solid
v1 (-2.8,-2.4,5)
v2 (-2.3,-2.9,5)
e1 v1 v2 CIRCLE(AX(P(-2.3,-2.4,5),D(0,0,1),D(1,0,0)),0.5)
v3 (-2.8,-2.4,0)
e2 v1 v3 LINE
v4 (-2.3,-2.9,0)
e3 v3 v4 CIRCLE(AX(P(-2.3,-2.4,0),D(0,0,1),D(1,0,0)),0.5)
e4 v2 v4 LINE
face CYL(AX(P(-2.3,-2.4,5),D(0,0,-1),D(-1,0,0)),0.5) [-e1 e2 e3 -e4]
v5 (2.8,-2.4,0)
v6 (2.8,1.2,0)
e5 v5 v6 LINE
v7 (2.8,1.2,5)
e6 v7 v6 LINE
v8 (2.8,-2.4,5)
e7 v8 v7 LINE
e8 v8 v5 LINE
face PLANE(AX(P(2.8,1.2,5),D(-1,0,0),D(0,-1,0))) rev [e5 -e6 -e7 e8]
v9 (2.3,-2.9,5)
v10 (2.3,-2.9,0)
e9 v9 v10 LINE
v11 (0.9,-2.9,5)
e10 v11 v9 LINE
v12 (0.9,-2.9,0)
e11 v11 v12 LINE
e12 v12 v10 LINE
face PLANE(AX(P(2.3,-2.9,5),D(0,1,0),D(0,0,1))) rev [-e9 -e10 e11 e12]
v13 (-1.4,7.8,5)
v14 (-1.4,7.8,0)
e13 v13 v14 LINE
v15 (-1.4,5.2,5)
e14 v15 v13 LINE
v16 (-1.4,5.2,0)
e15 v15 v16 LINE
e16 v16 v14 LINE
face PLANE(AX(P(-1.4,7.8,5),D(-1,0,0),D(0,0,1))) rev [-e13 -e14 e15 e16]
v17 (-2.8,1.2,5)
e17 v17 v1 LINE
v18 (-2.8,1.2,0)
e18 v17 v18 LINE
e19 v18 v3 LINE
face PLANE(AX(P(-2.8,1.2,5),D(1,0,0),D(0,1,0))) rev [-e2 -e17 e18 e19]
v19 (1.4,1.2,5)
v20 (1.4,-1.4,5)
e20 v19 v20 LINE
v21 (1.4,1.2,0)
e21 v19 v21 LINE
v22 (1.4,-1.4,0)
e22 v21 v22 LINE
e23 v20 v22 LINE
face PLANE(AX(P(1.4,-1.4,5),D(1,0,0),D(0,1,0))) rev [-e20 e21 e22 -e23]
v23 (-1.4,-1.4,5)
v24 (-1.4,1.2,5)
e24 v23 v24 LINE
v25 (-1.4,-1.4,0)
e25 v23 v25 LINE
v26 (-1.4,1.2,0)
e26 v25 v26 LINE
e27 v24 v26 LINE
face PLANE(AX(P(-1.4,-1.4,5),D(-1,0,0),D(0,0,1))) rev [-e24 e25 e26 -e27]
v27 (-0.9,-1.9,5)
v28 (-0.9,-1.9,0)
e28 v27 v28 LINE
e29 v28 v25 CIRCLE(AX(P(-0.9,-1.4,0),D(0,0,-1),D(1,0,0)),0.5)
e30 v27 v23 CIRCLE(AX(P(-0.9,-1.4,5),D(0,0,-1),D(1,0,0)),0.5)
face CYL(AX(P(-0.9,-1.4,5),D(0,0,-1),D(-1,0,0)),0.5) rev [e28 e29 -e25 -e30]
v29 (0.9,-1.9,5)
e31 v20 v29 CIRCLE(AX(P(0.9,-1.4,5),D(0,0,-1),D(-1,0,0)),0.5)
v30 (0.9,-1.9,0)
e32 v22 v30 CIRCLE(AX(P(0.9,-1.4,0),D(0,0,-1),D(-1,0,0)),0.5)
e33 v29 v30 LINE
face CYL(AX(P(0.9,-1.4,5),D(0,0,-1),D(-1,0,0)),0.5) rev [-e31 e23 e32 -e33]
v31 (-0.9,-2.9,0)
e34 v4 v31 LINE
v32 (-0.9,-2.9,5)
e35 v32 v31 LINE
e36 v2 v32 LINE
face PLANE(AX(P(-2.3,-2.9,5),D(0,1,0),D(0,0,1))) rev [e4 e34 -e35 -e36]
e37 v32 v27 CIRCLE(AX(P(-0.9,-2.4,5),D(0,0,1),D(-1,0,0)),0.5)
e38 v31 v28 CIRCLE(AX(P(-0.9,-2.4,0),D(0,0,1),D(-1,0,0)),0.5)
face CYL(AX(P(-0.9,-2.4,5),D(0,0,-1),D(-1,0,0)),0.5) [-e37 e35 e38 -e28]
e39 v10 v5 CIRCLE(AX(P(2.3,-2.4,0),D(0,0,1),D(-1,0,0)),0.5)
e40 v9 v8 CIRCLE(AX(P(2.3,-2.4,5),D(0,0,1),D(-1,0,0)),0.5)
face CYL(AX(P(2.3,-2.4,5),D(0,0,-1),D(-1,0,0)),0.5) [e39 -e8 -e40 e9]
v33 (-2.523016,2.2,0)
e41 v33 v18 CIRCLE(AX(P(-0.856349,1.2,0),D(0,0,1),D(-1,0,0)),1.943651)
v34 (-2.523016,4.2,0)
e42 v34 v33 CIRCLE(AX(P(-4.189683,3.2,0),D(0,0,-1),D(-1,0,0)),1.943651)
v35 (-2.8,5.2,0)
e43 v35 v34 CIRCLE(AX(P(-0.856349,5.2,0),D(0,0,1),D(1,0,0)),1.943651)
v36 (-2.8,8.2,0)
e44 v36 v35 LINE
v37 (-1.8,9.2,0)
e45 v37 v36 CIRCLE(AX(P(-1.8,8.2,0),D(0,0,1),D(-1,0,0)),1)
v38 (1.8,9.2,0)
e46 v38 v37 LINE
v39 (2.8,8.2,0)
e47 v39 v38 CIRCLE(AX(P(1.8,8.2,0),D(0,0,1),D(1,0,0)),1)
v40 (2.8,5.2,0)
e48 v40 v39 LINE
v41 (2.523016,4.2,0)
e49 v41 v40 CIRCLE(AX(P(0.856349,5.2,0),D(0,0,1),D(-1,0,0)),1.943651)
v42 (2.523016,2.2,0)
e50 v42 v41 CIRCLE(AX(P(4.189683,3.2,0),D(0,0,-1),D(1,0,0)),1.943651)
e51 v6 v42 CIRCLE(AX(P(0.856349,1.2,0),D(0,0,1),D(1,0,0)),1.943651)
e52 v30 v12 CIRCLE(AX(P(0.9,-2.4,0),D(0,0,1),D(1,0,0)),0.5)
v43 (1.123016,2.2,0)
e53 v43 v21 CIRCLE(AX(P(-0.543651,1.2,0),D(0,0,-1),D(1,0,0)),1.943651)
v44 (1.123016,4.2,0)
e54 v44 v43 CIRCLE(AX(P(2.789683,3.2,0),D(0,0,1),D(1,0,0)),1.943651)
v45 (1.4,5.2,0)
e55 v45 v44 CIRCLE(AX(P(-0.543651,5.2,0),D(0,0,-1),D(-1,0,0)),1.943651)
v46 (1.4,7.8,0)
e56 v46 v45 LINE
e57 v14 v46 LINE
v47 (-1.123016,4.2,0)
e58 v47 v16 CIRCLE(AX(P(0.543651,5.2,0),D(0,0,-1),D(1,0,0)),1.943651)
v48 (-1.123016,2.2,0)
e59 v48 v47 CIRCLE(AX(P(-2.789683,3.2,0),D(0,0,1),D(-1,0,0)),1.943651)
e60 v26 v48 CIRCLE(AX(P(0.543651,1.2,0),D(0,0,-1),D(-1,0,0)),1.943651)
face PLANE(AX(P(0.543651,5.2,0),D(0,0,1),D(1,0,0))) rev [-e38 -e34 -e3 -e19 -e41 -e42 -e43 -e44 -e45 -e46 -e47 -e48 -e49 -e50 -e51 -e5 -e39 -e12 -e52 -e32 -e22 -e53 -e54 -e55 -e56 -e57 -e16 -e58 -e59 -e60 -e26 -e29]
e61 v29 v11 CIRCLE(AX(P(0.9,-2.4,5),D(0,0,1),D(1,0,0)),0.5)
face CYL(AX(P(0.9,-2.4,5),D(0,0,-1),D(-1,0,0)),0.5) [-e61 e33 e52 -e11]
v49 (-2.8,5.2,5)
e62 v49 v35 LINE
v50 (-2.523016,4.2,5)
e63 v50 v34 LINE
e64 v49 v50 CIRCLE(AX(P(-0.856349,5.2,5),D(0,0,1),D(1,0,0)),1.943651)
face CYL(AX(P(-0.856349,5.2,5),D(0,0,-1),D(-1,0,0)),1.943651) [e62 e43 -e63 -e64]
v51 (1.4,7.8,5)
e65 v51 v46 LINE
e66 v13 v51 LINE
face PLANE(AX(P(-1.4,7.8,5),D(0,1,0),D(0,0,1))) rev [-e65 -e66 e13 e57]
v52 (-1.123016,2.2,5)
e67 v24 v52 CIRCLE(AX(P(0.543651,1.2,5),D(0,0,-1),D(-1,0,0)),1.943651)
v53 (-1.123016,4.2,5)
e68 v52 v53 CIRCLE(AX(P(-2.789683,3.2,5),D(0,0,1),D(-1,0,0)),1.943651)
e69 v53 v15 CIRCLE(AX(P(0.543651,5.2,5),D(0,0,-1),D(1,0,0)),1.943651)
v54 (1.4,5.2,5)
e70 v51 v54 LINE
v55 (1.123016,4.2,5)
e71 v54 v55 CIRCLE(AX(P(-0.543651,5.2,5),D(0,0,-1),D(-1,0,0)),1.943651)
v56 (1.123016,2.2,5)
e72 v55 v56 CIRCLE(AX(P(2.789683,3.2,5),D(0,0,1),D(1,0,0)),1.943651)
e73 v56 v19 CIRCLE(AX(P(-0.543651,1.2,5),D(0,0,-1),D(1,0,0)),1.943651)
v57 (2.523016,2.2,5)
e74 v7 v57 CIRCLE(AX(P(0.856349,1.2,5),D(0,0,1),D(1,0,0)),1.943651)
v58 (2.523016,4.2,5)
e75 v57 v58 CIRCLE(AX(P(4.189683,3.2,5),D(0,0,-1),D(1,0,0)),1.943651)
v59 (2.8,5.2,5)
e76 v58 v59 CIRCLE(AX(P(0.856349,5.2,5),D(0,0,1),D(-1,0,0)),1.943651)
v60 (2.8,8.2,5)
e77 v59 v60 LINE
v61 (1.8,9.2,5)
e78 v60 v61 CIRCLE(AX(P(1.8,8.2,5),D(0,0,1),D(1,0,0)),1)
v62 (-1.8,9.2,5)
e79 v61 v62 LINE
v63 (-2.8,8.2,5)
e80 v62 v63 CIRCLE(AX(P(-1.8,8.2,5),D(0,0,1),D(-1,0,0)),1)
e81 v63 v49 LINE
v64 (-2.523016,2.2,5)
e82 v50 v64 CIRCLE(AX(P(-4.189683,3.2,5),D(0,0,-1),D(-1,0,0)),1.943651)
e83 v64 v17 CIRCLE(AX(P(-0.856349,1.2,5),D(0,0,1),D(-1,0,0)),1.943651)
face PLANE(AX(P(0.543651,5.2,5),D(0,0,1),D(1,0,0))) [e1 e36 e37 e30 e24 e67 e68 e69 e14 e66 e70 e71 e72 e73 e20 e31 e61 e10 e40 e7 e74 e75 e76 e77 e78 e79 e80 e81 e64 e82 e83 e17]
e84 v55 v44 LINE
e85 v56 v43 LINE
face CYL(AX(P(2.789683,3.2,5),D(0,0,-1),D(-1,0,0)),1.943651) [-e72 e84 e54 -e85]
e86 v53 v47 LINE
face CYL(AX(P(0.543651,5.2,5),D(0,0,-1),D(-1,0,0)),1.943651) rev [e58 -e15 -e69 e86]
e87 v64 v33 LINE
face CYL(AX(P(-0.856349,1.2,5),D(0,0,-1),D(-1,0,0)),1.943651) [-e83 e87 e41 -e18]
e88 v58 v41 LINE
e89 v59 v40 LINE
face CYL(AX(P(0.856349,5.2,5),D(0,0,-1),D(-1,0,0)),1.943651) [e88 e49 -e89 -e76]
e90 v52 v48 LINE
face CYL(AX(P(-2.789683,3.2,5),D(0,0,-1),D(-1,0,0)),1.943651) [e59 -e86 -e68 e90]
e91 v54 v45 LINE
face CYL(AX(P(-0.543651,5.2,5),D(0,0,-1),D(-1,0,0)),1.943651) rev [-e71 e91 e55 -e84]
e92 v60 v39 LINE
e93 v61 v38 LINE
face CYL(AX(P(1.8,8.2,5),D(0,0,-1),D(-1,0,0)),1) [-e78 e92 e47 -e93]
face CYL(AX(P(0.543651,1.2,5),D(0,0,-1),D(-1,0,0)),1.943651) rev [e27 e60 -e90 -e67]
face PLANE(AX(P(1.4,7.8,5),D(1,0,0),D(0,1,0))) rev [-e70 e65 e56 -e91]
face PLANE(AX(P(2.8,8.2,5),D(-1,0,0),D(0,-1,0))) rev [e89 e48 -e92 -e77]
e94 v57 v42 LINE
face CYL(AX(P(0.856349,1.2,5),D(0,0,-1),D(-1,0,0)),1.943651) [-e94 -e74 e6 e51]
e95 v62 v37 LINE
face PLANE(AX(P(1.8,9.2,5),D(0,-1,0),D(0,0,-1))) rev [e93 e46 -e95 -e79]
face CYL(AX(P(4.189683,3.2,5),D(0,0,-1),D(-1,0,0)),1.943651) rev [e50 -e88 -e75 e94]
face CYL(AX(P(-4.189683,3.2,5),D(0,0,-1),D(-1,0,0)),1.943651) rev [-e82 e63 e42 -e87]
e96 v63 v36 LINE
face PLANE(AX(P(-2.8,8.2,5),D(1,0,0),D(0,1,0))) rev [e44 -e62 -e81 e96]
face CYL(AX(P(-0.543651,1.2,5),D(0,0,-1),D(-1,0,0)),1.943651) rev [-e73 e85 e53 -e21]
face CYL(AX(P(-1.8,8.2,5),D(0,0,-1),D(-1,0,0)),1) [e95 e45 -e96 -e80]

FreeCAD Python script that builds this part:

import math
import FreeCAD as App
import Part
import Sketcher

doc = App.newDocument("Part")
params = doc.addObject("Spreadsheet::Sheet", "Params")
for row, (alias, value) in enumerate([
    ("sketch1_radius", "1 mm"),
    ("sketch1_radius2", "0.5 mm"),
    ("sketch1_height", "3 mm"),
    ("sketch1_width", "2.8 mm"),
    ("sketch1_width2", "1.4 mm"),
    ("pad1_length", "5 mm"),
], start=1):
    params.set(f"A{row}", alias)
    params.set(f"B{row}", "=" + value)
    params.setAlias(f"B{row}", alias)

body = doc.addObject("PartDesign::Body", "Body")

# Sketch on XY plane
sketch1 = body.newObject("Sketcher::SketchObject", "Sketch")
sketch1.AttachmentSupport = (doc.getObject("XY_Plane"), [""])
sketch1.MapMode = "FlatFace"
sketch1.addGeometry([
    Part.LineSegment(App.Vector(-1.4, 7.8, 0), App.Vector(1.4, 7.8, 0)),  # 0
    Part.LineSegment(App.Vector(1.4, 7.8, 0), App.Vector(1.4, 5.2, 0)),  # 1
    Part.ArcOfCircle(Part.Circle(App.Vector(-0.54, 5.2, 0), App.Vector(0, 0, 1), 1.94), math.radians(-31), math.radians(0)),  # 2
    Part.ArcOfCircle(Part.Circle(App.Vector(2.79, 3.2, 0), App.Vector(0, 0, 1), 1.94), math.radians(149), math.radians(211)),  # 3
    Part.ArcOfCircle(Part.Circle(App.Vector(-0.54, 1.2, 0), App.Vector(0, 0, 1), 1.94), math.radians(0), math.radians(31)),  # 4
    Part.LineSegment(App.Vector(1.4, 1.2, 0), App.Vector(1.4, -1.4, 0)),  # 5
    Part.ArcOfCircle(Part.Circle(App.Vector(0.9, -1.4, 0), App.Vector(0, 0, 1), 0.5), math.radians(-90), math.radians(0)),  # 6
    Part.ArcOfCircle(Part.Circle(App.Vector(0.9, -2.4, 0), App.Vector(0, 0, 1), 0.5), math.radians(90), math.radians(180)),  # 7
    Part.ArcOfCircle(Part.Circle(App.Vector(0.9, -2.4, 0), App.Vector(0, 0, 1), 0.5), math.radians(180), math.radians(270)),  # 8
    Part.LineSegment(App.Vector(0.9, -2.9, 0), App.Vector(2.3, -2.9, 0)),  # 9
    Part.ArcOfCircle(Part.Circle(App.Vector(2.3, -2.4, 0), App.Vector(0, 0, 1), 0.5), math.radians(-90), math.radians(0)),  # 10
    Part.LineSegment(App.Vector(2.8, -2.4, 0), App.Vector(2.8, 1.2, 0)),  # 11
    Part.ArcOfCircle(Part.Circle(App.Vector(0.86, 1.2, 0), App.Vector(0, 0, 1), 1.94), math.radians(0), math.radians(31)),  # 12
    Part.ArcOfCircle(Part.Circle(App.Vector(4.19, 3.2, 0), App.Vector(0, 0, 1), 1.94), math.radians(149), math.radians(211)),  # 13
    Part.ArcOfCircle(Part.Circle(App.Vector(0.86, 5.2, 0), App.Vector(0, 0, 1), 1.94), math.radians(-31), math.radians(0)),  # 14
    Part.LineSegment(App.Vector(2.8, 5.2, 0), App.Vector(2.8, 8.2, 0)),  # 15
    Part.ArcOfCircle(Part.Circle(App.Vector(1.8, 8.2, 0), App.Vector(0, 0, 1), 1), math.radians(0), math.radians(90)),  # 16
    Part.LineSegment(App.Vector(1.8, 9.2, 0), App.Vector(-1.8, 9.2, 0)),  # 17
    Part.ArcOfCircle(Part.Circle(App.Vector(-1.8, 8.2, 0), App.Vector(0, 0, 1), 1), math.radians(90), math.radians(180)),  # 18
    Part.LineSegment(App.Vector(-2.8, 8.2, 0), App.Vector(-2.8, 5.2, 0)),  # 19
    Part.ArcOfCircle(Part.Circle(App.Vector(-0.86, 5.2, 0), App.Vector(0, 0, 1), 1.94), math.radians(-180), math.radians(-149)),  # 20
    Part.ArcOfCircle(Part.Circle(App.Vector(-4.19, 3.2, 0), App.Vector(0, 0, 1), 1.94), math.radians(-31), math.radians(31)),  # 21
    Part.ArcOfCircle(Part.Circle(App.Vector(-0.86, 1.2, 0), App.Vector(0, 0, 1), 1.94), math.radians(149), math.radians(180)),  # 22
    Part.LineSegment(App.Vector(-2.8, 1.2, 0), App.Vector(-2.8, -2.4, 0)),  # 23
    Part.ArcOfCircle(Part.Circle(App.Vector(-2.3, -2.4, 0), App.Vector(0, 0, 1), 0.5), math.radians(180), math.radians(270)),  # 24
    Part.LineSegment(App.Vector(-2.3, -2.9, 0), App.Vector(-0.9, -2.9, 0)),  # 25
    Part.ArcOfCircle(Part.Circle(App.Vector(-0.9, -2.4, 0), App.Vector(0, 0, 1), 0.5), math.radians(-90), math.radians(0)),  # 26
    Part.ArcOfCircle(Part.Circle(App.Vector(-0.9, -2.4, 0), App.Vector(0, 0, 1), 0.5), math.radians(0), math.radians(90)),  # 27
    Part.ArcOfCircle(Part.Circle(App.Vector(-0.9, -1.4, 0), App.Vector(0, 0, 1), 0.5), math.radians(180), math.radians(270)),  # 28
    Part.LineSegment(App.Vector(-1.4, -1.4, 0), App.Vector(-1.4, 1.2, 0)),  # 29
    Part.ArcOfCircle(Part.Circle(App.Vector(0.54, 1.2, 0), App.Vector(0, 0, 1), 1.94), math.radians(149), math.radians(180)),  # 30
    Part.ArcOfCircle(Part.Circle(App.Vector(-2.79, 3.2, 0), App.Vector(0, 0, 1), 1.94), math.radians(-31), math.radians(31)),  # 31
    Part.ArcOfCircle(Part.Circle(App.Vector(0.54, 5.2, 0), App.Vector(0, 0, 1), 1.94), math.radians(-180), math.radians(-149)),  # 32
    Part.LineSegment(App.Vector(-1.4, 5.2, 0), App.Vector(-1.4, 7.8, 0)),  # 33
], False)
sketch1.addConstraint([
    Sketcher.Constraint("Coincident", 0, 2, 1, 1),
    Sketcher.Constraint("Tangent", 1, 2, 2, 2),
    Sketcher.Constraint("Tangent", 2, 1, 3, 1),
    Sketcher.Constraint("Tangent", 3, 2, 4, 2),
    Sketcher.Constraint("Tangent", 4, 1, 5, 1),
    Sketcher.Constraint("Tangent", 5, 2, 6, 2),
    Sketcher.Constraint("Tangent", 6, 1, 7, 1),
    Sketcher.Constraint("Tangent", 7, 2, 8, 1),
    Sketcher.Constraint("Tangent", 8, 2, 9, 1),
    Sketcher.Constraint("Tangent", 9, 2, 10, 1),
    Sketcher.Constraint("Tangent", 10, 2, 11, 1),
    Sketcher.Constraint("Tangent", 11, 2, 12, 1),
    Sketcher.Constraint("Tangent", 12, 2, 13, 2),
    Sketcher.Constraint("Tangent", 13, 1, 14, 1),
    Sketcher.Constraint("Tangent", 14, 2, 15, 1),
    Sketcher.Constraint("Tangent", 15, 2, 16, 1),
    Sketcher.Constraint("Tangent", 16, 2, 17, 1),
    Sketcher.Constraint("Tangent", 17, 2, 18, 1),
    Sketcher.Constraint("Tangent", 18, 2, 19, 1),
    Sketcher.Constraint("Tangent", 19, 2, 20, 1),
    Sketcher.Constraint("Tangent", 20, 2, 21, 2),
    Sketcher.Constraint("Tangent", 21, 1, 22, 1),
    Sketcher.Constraint("Tangent", 22, 2, 23, 1),
    Sketcher.Constraint("Tangent", 23, 2, 24, 1),
    Sketcher.Constraint("Tangent", 24, 2, 25, 1),
    Sketcher.Constraint("Tangent", 25, 2, 26, 1),
    Sketcher.Constraint("Tangent", 26, 2, 27, 1),
    Sketcher.Constraint("Tangent", 27, 2, 28, 2),
    Sketcher.Constraint("Tangent", 28, 1, 29, 1),
    Sketcher.Constraint("Tangent", 29, 2, 30, 2),
    Sketcher.Constraint("Tangent", 30, 1, 31, 1),
    Sketcher.Constraint("Tangent", 31, 2, 32, 2),
    Sketcher.Constraint("Tangent", 32, 1, 33, 1),
    Sketcher.Constraint("Coincident", 33, 2, 0, 1),
    Sketcher.Constraint("Horizontal", 0),
    Sketcher.Constraint("Vertical", 1),
    Sketcher.Constraint("Vertical", 5),
    Sketcher.Constraint("Horizontal", 9),
    Sketcher.Constraint("Vertical", 11),
    Sketcher.Constraint("Vertical", 15),
    Sketcher.Constraint("Horizontal", 17),
    Sketcher.Constraint("Vertical", 19),
    Sketcher.Constraint("Vertical", 23),
    Sketcher.Constraint("Horizontal", 25),
    Sketcher.Constraint("Vertical", 29),
    Sketcher.Constraint("Vertical", 33),
    Sketcher.Constraint("Equal", 2, 3),
    Sketcher.Constraint("Equal", 3, 4),
    Sketcher.Constraint("Equal", 6, 7),
    Sketcher.Constraint("Equal", 7, 8),
    Sketcher.Constraint("Equal", 8, 10),
    Sketcher.Constraint("Equal", 4, 12),
    Sketcher.Constraint("Equal", 12, 13),
    Sketcher.Constraint("Equal", 13, 14),
    Sketcher.Constraint("Equal", 16, 18),
    Sketcher.Constraint("Equal", 14, 20),
    Sketcher.Constraint("Equal", 20, 21),
    Sketcher.Constraint("Equal", 21, 22),
    Sketcher.Constraint("Equal", 10, 24),
    Sketcher.Constraint("Equal", 24, 26),
    Sketcher.Constraint("Equal", 26, 27),
    Sketcher.Constraint("Equal", 27, 28),
    Sketcher.Constraint("Equal", 22, 30),
    Sketcher.Constraint("Equal", 30, 31),
    Sketcher.Constraint("Equal", 31, 32),
    Sketcher.Constraint("Symmetric", 14, 3, 20, 3, -2),
    Sketcher.Constraint("Symmetric", 12, 3, 22, 3, -2),
    Sketcher.Constraint("Symmetric", 7, 3, 26, 3, -2),
    Sketcher.Constraint("Symmetric", 4, 3, 30, 3, -2),
    Sketcher.Constraint("Symmetric", 2, 3, 32, 3, -2),
    Sketcher.Constraint("Horizontal", 4, 3, 12, 3),
    Sketcher.Constraint("Horizontal", 3, 3, 13, 3),
    Sketcher.Constraint("Horizontal", 2, 3, 14, 3),
    Sketcher.Constraint("Horizontal", 27, 3, 7, 2),
    Sketcher.Constraint("Horizontal", 23, 2, 26, 2),
    Sketcher.Constraint("Vertical", 2, 3, 4, 3),
    Sketcher.Constraint("Vertical", 6, 3, 7, 3),
    Sketcher.Constraint("Equal", 1, 5),
    Sketcher.Constraint("Equal", 17, 11),
    Sketcher.Constraint("Radius", 16, 1.0),
    Sketcher.Constraint("Radius", 6, 0.5),
    Sketcher.Constraint("DistanceY", 15, 1, 15, 2, 3.0),
    Sketcher.Constraint("DistanceX", 0, 1, 0, 2, 2.8),
    Sketcher.Constraint("DistanceX", 9, 1, 9, 2, 1.4),
    Sketcher.Constraint("DistanceY", 3, 3, 2, 3, 2.0),
    Sketcher.Constraint("DistanceY", -1, 1, 2, 3, 5.2),
    Sketcher.Constraint("Radius", 2, 1.943651),
])
sketch1.setExpression("Constraints[79]", "Params.sketch1_radius")
sketch1.setExpression("Constraints[80]", "Params.sketch1_radius2")
sketch1.setExpression("Constraints[81]", "Params.sketch1_height")
sketch1.setExpression("Constraints[82]", "Params.sketch1_width")
sketch1.setExpression("Constraints[83]", "Params.sketch1_width2")
pad1 = body.newObject("PartDesign::Pad", "Pad")
pad1.Profile = sketch1
pad1.setExpression("Length", "Params.pad1_length")

doc.recompute()
